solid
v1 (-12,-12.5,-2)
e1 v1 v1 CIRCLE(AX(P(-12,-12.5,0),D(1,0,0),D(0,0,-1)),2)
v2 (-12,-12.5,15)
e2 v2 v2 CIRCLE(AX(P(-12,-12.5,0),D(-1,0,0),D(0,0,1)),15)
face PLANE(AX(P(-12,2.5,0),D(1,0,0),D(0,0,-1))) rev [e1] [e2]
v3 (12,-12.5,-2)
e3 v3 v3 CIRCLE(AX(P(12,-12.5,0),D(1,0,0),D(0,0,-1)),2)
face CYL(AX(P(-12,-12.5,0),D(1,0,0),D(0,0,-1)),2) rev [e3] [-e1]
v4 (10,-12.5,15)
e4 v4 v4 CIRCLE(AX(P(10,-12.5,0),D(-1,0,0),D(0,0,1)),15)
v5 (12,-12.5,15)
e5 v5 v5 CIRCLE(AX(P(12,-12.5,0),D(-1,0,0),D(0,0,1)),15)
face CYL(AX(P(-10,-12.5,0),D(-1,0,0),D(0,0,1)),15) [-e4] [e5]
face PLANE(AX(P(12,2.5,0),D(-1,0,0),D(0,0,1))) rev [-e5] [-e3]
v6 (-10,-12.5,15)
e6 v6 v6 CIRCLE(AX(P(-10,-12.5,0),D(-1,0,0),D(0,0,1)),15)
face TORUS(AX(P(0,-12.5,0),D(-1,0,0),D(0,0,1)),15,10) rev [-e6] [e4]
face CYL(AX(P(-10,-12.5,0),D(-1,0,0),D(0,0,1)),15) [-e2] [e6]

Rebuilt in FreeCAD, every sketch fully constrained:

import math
import FreeCAD as App
import Part
import Sketcher
from FreeCAD import Vector
Q = App.Units.Quantity

doc = App.newDocument("Part")
params = doc.addObject("Spreadsheet::Sheet", "Params")
for row, (alias, value) in enumerate([
    ("sketch1_radius", "10 mm"),
    ("sketch1_width", "2 mm"),
    ("sketch1_height", "15 mm"),
    ("revolution_angle", "360 deg"),
    ("sketch2_diameter", "4 mm"),
], start=1):
    params.set(f"A{row}", alias)
    params.set(f"B{row}", "=" + value)
    params.setAlias(f"B{row}", alias)

body = doc.addObject("PartDesign::Body", "Body")

# Sketch on XY plane
sketch1 = doc.addObject("Sketcher::SketchObject", "Sketch")
body.addObject(sketch1)
sketch1.AttachmentSupport = (doc.XY_Plane, [""])
sketch1.MapMode = "FlatFace"
sketch1.addGeometry(Part.LineSegment(Vector(12, -12.5, 0), Vector(12, 2.5, 0)), False)
sketch1.addGeometry(Part.LineSegment(Vector(12, 2.5, 0), Vector(10, 2.5, 0)), False)
sketch1.addGeometry(Part.ArcOfCircle(Part.Circle(Vector(0, 2.5, 0), Vector(0, 0, 1), 10), math.radians(180), math.radians(360)), False)
sketch1.addGeometry(Part.LineSegment(Vector(-10, 2.5, 0), Vector(-12, 2.5, 0)), False)
sketch1.addGeometry(Part.LineSegment(Vector(-12, 2.5, 0), Vector(-12, -12.5, 0)), False)
sketch1.addGeometry(Part.LineSegment(Vector(-12, -12.5, 0), Vector(12, -12.5, 0)), False)
sketch1.addGeometry(Part.LineSegment(Vector(-12, -12.5, 0), Vector(12, -12.5, 0)), True)  # axis
sketch1.addConstraint(Sketcher.Constraint("Coincident", 0, 2, 1, 1))
sketch1.addConstraint(Sketcher.Constraint("Coincident", 1, 2, 2, 2))
sketch1.addConstraint(Sketcher.Constraint("Coincident", 2, 1, 3, 1))
sketch1.addConstraint(Sketcher.Constraint("Coincident", 3, 2, 4, 1))
sketch1.addConstraint(Sketcher.Constraint("Coincident", 4, 2, 5, 1))
sketch1.addConstraint(Sketcher.Constraint("Coincident", 5, 2, 0, 1))
sketch1.addConstraint(Sketcher.Constraint("Vertical", 0))
sketch1.addConstraint(Sketcher.Constraint("Horizontal", 1))
sketch1.addConstraint(Sketcher.Constraint("Horizontal", 3))
sketch1.addConstraint(Sketcher.Constraint("Vertical", 4))
sketch1.addConstraint(Sketcher.Constraint("Horizontal", 5))
sketch1.addConstraint(Sketcher.Constraint("Horizontal", 6))
sketch1.addConstraint(Sketcher.Constraint("Coincident", 6, 1, 4, 2))
sketch1.addConstraint(Sketcher.Constraint("Symmetric", 1, 2, 2, 1, -2))
sketch1.addConstraint(Sketcher.Constraint("Horizontal", 2, 3, 0, 2))
sketch1.addConstraint(Sketcher.Constraint("Vertical", 0, 2, 6, 2))
sketch1.addConstraint(Sketcher.Constraint("Equal", 1, 3))
sketch1.addConstraint(Sketcher.Constraint("Radius", 2, Q("10 mm")))
sketch1.addConstraint(Sketcher.Constraint("DistanceX", 1, 2, 1, 1, Q("2 mm")))
sketch1.addConstraint(Sketcher.Constraint("DistanceY", 0, 1, 0, 2, Q("15 mm")))
sketch1.addConstraint(Sketcher.Constraint("DistanceY", -1, 1, 2, 3, Q("2.5 mm")))
sketch1.setExpression("Constraints[17]", "Params.sketch1_radius")
sketch1.setExpression("Constraints[18]", "Params.sketch1_width")
sketch1.setExpression("Constraints[19]", "Params.sketch1_height")
revolution = doc.addObject("PartDesign::Revolution", "Revolution")
body.addObject(revolution)
revolution.Profile = sketch1
revolution.ReferenceAxis = (sketch1, ["Axis0"])
revolution.setExpression("Angle", "Params.revolution_angle")

# Sketch on YZ plane
sketch2 = doc.addObject("Sketcher::SketchObject", "Sketch001")
body.addObject(sketch2)
sketch2.AttachmentSupport = (doc.YZ_Plane, [""])
sketch2.MapMode = "FlatFace"
sketch2.AttachmentOffset = App.Placement(Vector(0, 0, 12), App.Rotation())
sketch2.addGeometry(Part.Circle(Vector(-12.5, 0, 0), Vector(0, 0, 1), 2), False)
sketch2.addConstraint(Sketcher.Constraint("PointOnObject", 0, 3, -1))
sketch2.addConstraint(Sketcher.Constraint("Diameter", 0, Q("4 mm")))
sketch2.addConstraint(Sketcher.Constraint("DistanceX", 0, 3, -1, 1, Q("12.5 mm")))
sketch2.setExpression("Constraints[1]", "Params.sketch2_diameter")
pocket1 = doc.addObject("PartDesign::Pocket", "Pocket")
body.addObject(pocket1)
pocket1.Profile = sketch2
pocket1.Type = "ThroughAll"

doc.recompute()
